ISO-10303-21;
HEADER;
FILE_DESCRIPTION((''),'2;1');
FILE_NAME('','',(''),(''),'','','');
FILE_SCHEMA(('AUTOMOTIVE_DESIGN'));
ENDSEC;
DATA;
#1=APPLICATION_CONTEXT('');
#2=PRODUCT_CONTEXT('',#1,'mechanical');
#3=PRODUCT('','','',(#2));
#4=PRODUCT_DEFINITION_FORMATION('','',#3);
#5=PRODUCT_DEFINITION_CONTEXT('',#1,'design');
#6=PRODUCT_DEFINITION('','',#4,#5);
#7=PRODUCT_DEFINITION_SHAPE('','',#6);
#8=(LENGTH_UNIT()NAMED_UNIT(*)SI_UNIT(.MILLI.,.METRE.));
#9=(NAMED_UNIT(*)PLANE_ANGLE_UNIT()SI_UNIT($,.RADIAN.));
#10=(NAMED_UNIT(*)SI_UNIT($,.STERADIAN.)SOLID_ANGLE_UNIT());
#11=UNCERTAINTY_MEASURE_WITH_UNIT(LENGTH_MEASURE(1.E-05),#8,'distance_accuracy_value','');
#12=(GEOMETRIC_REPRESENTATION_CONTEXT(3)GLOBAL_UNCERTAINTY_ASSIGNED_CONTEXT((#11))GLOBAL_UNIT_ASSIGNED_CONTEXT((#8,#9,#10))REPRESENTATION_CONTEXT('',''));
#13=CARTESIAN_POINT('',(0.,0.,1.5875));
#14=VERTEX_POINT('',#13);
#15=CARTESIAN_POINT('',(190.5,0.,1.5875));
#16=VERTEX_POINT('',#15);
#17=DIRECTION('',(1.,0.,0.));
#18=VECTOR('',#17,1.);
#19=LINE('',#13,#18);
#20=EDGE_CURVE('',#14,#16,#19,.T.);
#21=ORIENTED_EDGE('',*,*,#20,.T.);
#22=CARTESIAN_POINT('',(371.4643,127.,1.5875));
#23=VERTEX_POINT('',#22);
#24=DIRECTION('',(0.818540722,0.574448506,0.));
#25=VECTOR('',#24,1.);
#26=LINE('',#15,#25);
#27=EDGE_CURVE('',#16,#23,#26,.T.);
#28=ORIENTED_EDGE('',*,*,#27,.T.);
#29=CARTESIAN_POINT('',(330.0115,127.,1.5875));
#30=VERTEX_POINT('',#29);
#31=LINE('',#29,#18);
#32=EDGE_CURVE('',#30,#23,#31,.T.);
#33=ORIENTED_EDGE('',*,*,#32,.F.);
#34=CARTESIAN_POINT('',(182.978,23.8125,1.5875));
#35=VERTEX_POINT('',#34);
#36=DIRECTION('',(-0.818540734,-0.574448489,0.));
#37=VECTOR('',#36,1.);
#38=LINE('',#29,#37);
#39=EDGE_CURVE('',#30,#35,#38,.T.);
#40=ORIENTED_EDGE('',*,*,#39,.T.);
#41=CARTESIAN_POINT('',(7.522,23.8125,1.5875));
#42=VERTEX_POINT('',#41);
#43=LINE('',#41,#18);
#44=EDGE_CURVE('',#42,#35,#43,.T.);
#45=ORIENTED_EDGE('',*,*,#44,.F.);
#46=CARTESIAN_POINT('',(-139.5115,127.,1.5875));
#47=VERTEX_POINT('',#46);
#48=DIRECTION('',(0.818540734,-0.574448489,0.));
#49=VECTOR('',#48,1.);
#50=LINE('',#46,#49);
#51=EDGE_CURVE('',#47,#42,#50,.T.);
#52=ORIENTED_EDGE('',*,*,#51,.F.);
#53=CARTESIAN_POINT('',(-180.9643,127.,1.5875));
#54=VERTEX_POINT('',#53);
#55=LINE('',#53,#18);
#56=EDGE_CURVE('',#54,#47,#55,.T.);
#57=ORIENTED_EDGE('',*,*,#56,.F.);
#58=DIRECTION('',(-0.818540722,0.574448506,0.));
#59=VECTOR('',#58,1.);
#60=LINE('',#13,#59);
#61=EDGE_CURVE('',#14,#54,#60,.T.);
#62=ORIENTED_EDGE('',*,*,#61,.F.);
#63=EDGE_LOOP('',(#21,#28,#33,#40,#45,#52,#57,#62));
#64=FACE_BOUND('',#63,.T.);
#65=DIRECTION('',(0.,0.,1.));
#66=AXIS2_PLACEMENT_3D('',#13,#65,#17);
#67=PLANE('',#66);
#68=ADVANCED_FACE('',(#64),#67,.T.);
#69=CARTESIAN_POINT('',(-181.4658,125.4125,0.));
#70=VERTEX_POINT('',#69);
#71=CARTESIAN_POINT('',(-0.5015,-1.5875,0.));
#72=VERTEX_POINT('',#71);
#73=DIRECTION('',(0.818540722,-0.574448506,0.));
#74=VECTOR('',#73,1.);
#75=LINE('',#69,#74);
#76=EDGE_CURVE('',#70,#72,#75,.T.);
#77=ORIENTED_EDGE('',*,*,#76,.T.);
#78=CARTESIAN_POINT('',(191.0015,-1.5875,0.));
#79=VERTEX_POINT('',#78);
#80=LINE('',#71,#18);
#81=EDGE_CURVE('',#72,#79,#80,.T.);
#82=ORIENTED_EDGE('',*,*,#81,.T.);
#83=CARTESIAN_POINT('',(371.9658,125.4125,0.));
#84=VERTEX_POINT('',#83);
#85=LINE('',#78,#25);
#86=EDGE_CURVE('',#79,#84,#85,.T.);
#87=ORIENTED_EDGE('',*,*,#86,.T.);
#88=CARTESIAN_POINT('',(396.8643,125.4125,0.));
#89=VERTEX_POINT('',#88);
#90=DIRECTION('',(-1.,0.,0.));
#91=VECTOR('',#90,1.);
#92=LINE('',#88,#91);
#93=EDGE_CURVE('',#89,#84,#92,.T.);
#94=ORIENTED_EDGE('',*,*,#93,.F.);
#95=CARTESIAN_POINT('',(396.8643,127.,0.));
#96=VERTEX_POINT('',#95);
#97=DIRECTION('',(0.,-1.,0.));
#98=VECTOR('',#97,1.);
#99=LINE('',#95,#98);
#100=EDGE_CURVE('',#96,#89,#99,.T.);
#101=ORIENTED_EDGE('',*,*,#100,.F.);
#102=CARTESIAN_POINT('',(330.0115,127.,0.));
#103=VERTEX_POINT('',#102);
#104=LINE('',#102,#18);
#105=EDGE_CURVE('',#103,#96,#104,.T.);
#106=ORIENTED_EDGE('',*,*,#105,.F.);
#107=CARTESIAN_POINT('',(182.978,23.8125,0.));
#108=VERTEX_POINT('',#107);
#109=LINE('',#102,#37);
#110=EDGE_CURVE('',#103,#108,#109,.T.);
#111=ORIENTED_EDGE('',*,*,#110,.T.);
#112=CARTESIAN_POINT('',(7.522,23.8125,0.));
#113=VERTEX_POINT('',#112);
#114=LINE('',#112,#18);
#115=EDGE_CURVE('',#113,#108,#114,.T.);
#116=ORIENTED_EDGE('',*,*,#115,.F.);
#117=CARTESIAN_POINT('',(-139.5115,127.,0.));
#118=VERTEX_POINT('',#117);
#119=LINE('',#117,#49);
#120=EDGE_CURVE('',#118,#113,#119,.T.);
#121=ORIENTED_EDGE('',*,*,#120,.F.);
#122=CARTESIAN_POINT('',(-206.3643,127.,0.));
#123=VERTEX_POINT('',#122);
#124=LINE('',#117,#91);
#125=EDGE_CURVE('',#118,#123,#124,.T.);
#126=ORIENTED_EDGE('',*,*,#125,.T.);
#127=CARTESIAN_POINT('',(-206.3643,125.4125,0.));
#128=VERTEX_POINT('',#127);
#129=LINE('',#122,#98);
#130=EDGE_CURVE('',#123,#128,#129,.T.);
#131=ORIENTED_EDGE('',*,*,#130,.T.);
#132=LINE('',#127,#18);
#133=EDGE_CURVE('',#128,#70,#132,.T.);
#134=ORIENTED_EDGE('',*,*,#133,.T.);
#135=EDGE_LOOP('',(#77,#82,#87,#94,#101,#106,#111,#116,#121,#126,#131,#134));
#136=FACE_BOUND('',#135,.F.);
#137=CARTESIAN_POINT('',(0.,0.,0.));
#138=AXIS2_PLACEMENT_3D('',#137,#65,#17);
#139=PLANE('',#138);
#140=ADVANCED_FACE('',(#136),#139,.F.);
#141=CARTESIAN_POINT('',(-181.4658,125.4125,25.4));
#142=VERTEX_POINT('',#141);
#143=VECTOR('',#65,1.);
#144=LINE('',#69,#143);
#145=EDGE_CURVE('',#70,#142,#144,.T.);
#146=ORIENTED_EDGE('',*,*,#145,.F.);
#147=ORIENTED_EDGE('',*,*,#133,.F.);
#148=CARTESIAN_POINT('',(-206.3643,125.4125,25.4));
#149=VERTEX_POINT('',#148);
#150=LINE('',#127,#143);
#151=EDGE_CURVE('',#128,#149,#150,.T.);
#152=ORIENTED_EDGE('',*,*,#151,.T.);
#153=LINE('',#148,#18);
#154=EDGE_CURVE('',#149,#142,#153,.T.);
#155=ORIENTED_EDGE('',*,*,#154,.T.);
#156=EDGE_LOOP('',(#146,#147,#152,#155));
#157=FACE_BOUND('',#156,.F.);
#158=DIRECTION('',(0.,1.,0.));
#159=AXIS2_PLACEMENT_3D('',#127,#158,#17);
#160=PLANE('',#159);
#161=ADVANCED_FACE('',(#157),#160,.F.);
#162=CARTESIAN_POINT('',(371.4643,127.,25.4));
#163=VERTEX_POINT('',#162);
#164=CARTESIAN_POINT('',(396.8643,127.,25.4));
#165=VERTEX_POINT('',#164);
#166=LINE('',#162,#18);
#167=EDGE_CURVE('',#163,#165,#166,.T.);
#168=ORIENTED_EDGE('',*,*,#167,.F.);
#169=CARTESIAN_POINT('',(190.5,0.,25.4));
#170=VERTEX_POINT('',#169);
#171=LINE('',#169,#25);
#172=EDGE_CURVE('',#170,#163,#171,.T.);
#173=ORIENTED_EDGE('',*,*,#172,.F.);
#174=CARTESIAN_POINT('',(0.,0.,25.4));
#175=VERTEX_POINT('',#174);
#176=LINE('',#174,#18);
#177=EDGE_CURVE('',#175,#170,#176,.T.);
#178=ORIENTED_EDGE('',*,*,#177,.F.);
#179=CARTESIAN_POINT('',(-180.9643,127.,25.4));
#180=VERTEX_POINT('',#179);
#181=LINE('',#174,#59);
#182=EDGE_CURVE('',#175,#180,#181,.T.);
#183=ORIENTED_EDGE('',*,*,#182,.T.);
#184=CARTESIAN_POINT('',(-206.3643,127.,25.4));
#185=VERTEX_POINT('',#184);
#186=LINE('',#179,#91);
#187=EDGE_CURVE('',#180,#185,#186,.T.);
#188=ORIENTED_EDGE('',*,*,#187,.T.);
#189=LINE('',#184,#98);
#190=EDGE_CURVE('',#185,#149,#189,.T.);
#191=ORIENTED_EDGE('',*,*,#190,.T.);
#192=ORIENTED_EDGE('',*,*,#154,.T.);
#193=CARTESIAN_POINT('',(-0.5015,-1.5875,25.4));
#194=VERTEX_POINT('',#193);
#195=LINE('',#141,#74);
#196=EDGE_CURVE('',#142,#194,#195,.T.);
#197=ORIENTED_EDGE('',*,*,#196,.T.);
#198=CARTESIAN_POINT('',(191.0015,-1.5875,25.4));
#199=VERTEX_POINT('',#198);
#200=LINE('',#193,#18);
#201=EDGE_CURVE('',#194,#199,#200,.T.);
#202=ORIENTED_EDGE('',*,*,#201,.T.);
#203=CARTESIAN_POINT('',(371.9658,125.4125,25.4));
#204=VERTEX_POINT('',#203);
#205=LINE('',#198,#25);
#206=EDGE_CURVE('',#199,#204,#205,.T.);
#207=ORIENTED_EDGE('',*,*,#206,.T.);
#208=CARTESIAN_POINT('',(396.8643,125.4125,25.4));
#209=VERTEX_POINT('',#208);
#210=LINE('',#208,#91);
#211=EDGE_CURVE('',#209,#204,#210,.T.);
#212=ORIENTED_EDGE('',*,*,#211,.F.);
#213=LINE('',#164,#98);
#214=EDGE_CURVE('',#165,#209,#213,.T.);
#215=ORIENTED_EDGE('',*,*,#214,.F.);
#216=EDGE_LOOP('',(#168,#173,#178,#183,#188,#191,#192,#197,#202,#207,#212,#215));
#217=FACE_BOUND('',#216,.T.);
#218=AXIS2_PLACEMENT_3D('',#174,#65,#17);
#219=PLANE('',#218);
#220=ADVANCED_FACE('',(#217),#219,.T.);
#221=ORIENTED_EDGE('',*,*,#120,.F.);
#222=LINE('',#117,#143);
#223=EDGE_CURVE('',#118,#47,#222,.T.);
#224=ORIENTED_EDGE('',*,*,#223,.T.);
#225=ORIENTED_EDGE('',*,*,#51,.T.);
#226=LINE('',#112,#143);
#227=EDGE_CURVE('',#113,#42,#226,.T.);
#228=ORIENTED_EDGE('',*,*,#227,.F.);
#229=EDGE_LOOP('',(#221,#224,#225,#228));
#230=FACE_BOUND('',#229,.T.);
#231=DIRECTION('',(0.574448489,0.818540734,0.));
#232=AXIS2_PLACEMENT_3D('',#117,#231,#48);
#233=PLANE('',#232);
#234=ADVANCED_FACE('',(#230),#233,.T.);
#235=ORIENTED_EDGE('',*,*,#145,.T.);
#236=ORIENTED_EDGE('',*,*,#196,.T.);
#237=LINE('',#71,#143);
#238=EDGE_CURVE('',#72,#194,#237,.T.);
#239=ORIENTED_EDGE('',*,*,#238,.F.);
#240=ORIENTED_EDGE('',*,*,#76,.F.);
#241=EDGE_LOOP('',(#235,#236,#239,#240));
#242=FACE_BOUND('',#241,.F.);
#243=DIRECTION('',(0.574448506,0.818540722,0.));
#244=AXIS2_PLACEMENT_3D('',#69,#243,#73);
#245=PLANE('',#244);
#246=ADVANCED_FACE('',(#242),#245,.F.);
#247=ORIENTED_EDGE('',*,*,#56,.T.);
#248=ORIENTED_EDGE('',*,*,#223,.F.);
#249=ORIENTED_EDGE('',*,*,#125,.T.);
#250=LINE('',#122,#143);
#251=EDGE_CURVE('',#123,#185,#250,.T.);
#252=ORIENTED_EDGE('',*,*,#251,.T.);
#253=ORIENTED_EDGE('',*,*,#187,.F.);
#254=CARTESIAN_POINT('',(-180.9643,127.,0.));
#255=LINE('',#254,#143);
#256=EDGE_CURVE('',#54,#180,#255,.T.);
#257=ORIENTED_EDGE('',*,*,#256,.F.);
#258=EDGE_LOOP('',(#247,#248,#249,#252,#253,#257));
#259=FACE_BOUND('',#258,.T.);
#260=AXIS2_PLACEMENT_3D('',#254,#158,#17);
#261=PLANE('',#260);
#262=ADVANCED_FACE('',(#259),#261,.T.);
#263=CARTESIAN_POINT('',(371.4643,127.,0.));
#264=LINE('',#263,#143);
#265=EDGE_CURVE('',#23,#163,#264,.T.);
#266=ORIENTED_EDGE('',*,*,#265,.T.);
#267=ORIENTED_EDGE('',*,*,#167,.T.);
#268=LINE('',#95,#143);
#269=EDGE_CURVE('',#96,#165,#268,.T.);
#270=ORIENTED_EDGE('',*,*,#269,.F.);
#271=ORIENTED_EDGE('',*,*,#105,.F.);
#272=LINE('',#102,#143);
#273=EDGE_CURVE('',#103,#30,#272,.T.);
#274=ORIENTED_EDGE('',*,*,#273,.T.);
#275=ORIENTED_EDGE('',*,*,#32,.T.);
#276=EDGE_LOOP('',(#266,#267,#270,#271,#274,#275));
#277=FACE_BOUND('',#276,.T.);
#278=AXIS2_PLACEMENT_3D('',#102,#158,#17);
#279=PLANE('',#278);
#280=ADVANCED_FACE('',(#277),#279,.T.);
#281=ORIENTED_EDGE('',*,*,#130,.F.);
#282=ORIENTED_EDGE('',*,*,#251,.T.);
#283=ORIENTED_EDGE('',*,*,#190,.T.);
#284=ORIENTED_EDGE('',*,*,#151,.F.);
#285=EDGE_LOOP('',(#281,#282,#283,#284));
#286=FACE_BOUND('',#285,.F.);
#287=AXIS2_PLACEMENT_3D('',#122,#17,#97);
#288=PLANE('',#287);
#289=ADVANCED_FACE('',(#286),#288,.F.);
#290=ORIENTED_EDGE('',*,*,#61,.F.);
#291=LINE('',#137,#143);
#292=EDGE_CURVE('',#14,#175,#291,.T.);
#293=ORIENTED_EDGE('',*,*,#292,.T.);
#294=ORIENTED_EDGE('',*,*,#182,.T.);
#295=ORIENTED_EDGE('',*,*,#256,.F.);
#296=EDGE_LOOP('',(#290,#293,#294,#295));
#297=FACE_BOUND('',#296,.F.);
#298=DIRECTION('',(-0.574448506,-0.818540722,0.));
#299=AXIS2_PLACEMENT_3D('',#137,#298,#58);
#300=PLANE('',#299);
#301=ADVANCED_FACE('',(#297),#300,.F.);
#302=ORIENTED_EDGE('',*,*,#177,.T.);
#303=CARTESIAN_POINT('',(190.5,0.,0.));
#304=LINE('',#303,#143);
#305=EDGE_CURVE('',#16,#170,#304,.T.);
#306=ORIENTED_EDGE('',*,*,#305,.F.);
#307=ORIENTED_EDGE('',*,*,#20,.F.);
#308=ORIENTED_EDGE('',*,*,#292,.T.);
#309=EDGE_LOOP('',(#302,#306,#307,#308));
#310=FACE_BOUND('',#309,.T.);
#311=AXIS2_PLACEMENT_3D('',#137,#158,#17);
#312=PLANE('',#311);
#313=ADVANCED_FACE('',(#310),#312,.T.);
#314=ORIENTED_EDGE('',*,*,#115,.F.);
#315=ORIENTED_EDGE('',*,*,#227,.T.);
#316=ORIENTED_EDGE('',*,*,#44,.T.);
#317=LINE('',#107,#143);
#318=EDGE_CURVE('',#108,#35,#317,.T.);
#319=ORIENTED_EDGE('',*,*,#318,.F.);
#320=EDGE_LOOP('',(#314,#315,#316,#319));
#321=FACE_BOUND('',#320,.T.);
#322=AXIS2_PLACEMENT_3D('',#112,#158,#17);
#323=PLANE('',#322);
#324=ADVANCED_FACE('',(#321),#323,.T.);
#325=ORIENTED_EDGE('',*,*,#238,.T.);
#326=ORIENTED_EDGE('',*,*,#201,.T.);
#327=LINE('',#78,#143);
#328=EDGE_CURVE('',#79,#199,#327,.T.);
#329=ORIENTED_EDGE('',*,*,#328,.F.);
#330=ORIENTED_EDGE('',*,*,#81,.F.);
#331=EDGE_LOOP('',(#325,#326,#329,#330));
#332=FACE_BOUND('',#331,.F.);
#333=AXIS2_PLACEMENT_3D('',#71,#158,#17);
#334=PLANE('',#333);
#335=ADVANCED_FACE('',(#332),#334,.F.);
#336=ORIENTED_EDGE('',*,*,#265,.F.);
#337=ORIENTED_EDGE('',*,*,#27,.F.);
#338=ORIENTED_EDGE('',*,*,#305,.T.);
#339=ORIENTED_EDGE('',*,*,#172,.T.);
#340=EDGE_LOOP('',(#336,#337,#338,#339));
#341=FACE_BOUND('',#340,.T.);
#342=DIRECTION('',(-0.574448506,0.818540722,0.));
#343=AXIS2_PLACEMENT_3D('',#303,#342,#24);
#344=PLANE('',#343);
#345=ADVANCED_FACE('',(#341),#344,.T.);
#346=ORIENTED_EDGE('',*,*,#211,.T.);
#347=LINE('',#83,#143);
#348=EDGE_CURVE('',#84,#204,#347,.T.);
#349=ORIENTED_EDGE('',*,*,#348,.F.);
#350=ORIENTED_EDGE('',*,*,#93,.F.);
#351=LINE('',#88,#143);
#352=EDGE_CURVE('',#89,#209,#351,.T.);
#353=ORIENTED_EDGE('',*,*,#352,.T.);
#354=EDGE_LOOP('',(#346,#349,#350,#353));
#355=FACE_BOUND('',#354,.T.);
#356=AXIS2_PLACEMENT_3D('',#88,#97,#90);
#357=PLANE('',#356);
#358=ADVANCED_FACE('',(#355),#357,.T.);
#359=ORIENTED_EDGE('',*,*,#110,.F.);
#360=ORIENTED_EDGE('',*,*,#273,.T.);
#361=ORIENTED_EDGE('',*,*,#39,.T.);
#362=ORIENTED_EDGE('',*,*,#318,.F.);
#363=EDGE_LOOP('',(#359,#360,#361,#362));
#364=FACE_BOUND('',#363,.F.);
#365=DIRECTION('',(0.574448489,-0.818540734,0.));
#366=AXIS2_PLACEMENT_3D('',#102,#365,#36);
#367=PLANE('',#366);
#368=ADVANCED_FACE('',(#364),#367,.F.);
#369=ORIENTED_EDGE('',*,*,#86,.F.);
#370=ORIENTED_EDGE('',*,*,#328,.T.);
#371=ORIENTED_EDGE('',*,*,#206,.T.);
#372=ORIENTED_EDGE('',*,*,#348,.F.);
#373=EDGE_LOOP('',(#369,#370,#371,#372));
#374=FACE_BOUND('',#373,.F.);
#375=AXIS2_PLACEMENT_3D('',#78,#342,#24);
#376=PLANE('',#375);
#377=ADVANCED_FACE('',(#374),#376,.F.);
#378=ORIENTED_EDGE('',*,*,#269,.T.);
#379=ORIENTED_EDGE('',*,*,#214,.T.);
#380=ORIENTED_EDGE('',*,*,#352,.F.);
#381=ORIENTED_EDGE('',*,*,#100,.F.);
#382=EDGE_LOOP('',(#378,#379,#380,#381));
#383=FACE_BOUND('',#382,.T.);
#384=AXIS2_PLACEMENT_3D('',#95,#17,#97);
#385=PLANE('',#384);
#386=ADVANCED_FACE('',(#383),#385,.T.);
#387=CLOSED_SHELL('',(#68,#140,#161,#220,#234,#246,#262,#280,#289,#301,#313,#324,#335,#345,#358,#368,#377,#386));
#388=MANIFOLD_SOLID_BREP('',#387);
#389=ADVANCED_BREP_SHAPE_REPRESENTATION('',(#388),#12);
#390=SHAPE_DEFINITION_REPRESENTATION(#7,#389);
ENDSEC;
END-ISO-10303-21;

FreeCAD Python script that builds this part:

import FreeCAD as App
import Part
import Sketcher
Q = App.Units.Quantity

doc = App.newDocument("Part")
params = doc.addObject("Spreadsheet::Sheet", "Params")
for row, (alias, value) in enumerate([
    ("sketch1_width", "7.5 in"),
    ("sketch1_width2", "1.632 in"),
    ("pad1_length", "0.0625 in"),
    ("sketch2_width", "1 in"),
    ("sketch2_width2", "7.5 in"),
    ("sketch2_height", "0.0625 in"),
    ("pad2_length", "1 in"),
], start=1):
    params.set(f"A{row}", alias)
    params.set(f"B{row}", "=" + value)
    params.setAlias(f"B{row}", alias)

body = doc.addObject("PartDesign::Body", "Body")

sketch1 = body.newObject("Sketcher::SketchObject", "Sketch")
sketch1.AttachmentSupport = (doc.getObject("XY_Plane"), [""])
sketch1.MapMode = "FlatFace"
sketch1.addGeometry(Part.LineSegment(App.Vector(-181, 127, 0), App.Vector(0, 0, 0)), False)
sketch1.addGeometry(Part.LineSegment(App.Vector(0, 0, 0), App.Vector(190, 0, 0)), False)
sketch1.addGeometry(Part.LineSegment(App.Vector(190, 0, 0), App.Vector(371, 127, 0)), False)
sketch1.addGeometry(Part.LineSegment(App.Vector(371, 127, 0), App.Vector(330, 127, 0)), False)
sketch1.addGeometry(Part.LineSegment(App.Vector(330, 127, 0), App.Vector(183, 24, 0)), False)
sketch1.addGeometry(Part.LineSegment(App.Vector(183, 24, 0), App.Vector(8, 24, 0)), False)
sketch1.addGeometry(Part.LineSegment(App.Vector(8, 24, 0), App.Vector(-140, 127, 0)), False)
sketch1.addGeometry(Part.LineSegment(App.Vector(-140, 127, 0), App.Vector(-181, 127, 0)), False)
sketch1.addConstraint(Sketcher.Constraint("Coincident", 0, 2, 1, 1))
sketch1.addConstraint(Sketcher.Constraint("Coincident", 1, 2, 2, 1))
sketch1.addConstraint(Sketcher.Constraint("Coincident", 2, 2, 3, 1))
sketch1.addConstraint(Sketcher.Constraint("Coincident", 3, 2, 4, 1))
sketch1.addConstraint(Sketcher.Constraint("Coincident", 4, 2, 5, 1))
sketch1.addConstraint(Sketcher.Constraint("Coincident", 5, 2, 6, 1))
sketch1.addConstraint(Sketcher.Constraint("Coincident", 6, 2, 7, 1))
sketch1.addConstraint(Sketcher.Constraint("Coincident", 7, 2, 0, 1))
sketch1.addConstraint(Sketcher.Constraint("Horizontal", 1))
sketch1.addConstraint(Sketcher.Constraint("Horizontal", 3))
sketch1.addConstraint(Sketcher.Constraint("Horizontal", 5))
sketch1.addConstraint(Sketcher.Constraint("Horizontal", 7))
sketch1.addConstraint(Sketcher.Constraint("Coincident", 0, 2, -1, 1))
sketch1.addConstraint(Sketcher.Constraint("Parallel", 2, 4))
sketch1.addConstraint(Sketcher.Constraint("Parallel", 0, 6))
sketch1.addConstraint(Sketcher.Constraint("Horizontal", 3, 2, 6, 2))
sketch1.addConstraint(Sketcher.Constraint("Equal", 3, 7))
sketch1.addConstraint(Sketcher.Constraint("Equal", 0, 2))
sketch1.addConstraint(Sketcher.Constraint("DistanceX", 1, 1, 1, 2, Q("7.5 in")))
sketch1.addConstraint(Sketcher.Constraint("DistanceY", -1, 1, 2, 2, Q("5 in")))
sketch1.addConstraint(Sketcher.Constraint("Angle", 4, Q("-144.939 deg")))
sketch1.addConstraint(Sketcher.Constraint("DistanceY", -1, 1, 4, 2, Q("0.9375 in")))
sketch1.addConstraint(Sketcher.Constraint("DistanceX", 3, 2, 3, 1, Q("1.632 in")))
sketch1.setExpression("Constraints[18]", "Params.sketch1_width")
sketch1.setExpression("Constraints[22]", "Params.sketch1_width2")
pad1 = body.newObject("PartDesign::Pad", "Pad")
pad1.Profile = sketch1
pad1.setExpression("Length", "Params.pad1_length")

sketch2 = body.newObject("Sketcher::SketchObject", "Sketch001")
sketch2.AttachmentSupport = (doc.getObject("XY_Plane"), [""])
sketch2.MapMode = "FlatFace"
sketch2.addGeometry(Part.LineSegment(App.Vector(190.5, 0, 0), App.Vector(0, 0, 0)), False)
sketch2.addGeometry(Part.LineSegment(App.Vector(0, 0, 0), App.Vector(-181, 127, 0)), False)
sketch2.addGeometry(Part.LineSegment(App.Vector(-181, 127, 0), App.Vector(-206.4, 127, 0)), False)
sketch2.addGeometry(Part.LineSegment(App.Vector(-206.4, 127, 0), App.Vector(-206.4, 125.4, 0)), False)
sketch2.addGeometry(Part.LineSegment(App.Vector(-206.4, 125.4, 0), App.Vector(-181.5, 125.4, 0)), False)
sketch2.addGeometry(Part.LineSegment(App.Vector(-181.5, 125.4, 0), App.Vector(-0.5, -1.6, 0)), False)
sketch2.addGeometry(Part.LineSegment(App.Vector(-0.5, -1.6, 0), App.Vector(191, -1.6, 0)), False)
sketch2.addGeometry(Part.LineSegment(App.Vector(191, -1.6, 0), App.Vector(372, 125.4, 0)), False)
sketch2.addGeometry(Part.LineSegment(App.Vector(372, 125.4, 0), App.Vector(396.9, 125.4, 0)), False)
sketch2.addGeometry(Part.LineSegment(App.Vector(396.9, 125.4, 0), App.Vector(396.9, 127, 0)), False)
sketch2.addGeometry(Part.LineSegment(App.Vector(396.9, 127, 0), App.Vector(371.5, 127, 0)), False)
sketch2.addGeometry(Part.LineSegment(App.Vector(371.5, 127, 0), App.Vector(190.5, 0, 0)), False)
sketch2.addConstraint(Sketcher.Constraint("Coincident", 0, 2, 1, 1))
sketch2.addConstraint(Sketcher.Constraint("Coincident", 1, 2, 2, 1))
sketch2.addConstraint(Sketcher.Constraint("Coincident", 2, 2, 3, 1))
sketch2.addConstraint(Sketcher.Constraint("Coincident", 3, 2, 4, 1))
sketch2.addConstraint(Sketcher.Constraint("Coincident", 4, 2, 5, 1))
sketch2.addConstraint(Sketcher.Constraint("Coincident", 5, 2, 6, 1))
sketch2.addConstraint(Sketcher.Constraint("Coincident", 6, 2, 7, 1))
sketch2.addConstraint(Sketcher.Constraint("Coincident", 7, 2, 8, 1))
sketch2.addConstraint(Sketcher.Constraint("Coincident", 8, 2, 9, 1))
sketch2.addConstraint(Sketcher.Constraint("Coincident", 9, 2, 10, 1))
sketch2.addConstraint(Sketcher.Constraint("Coincident", 10, 2, 11, 1))
sketch2.addConstraint(Sketcher.Constraint("Coincident", 11, 2, 0, 1))
sketch2.addConstraint(Sketcher.Constraint("Horizontal", 0))
sketch2.addConstraint(Sketcher.Constraint("Horizontal", 2))
sketch2.addConstraint(Sketcher.Constraint("Vertical", 3))
sketch2.addConstraint(Sketcher.Constraint("Horizontal", 4))
sketch2.addConstraint(Sketcher.Constraint("Horizontal", 6))
sketch2.addConstraint(Sketcher.Constraint("Horizontal", 8))
sketch2.addConstraint(Sketcher.Constraint("Vertical", 9))
sketch2.addConstraint(Sketcher.Constraint("Horizontal", 10))
sketch2.addConstraint(Sketcher.Constraint("Coincident", 0, 2, -1, 1))
sketch2.addConstraint(Sketcher.Constraint("Parallel", 1, 5))
sketch2.addConstraint(Sketcher.Constraint("Parallel", 7, 11))
sketch2.addConstraint(Sketcher.Constraint("Horizontal", 4, 2, 7, 2))
sketch2.addConstraint(Sketcher.Constraint("Horizontal", 2, 2, 9, 2))
sketch2.addConstraint(Sketcher.Constraint("Equal", 4, 8))
sketch2.addConstraint(Sketcher.Constraint("Equal", 2, 10))
sketch2.addConstraint(Sketcher.Constraint("Equal", 1, 5))
sketch2.addConstraint(Sketcher.Constraint("Equal", 5, 7))
sketch2.addConstraint(Sketcher.Constraint("DistanceX", 2, 2, 2, 1, Q("1 in")))
sketch2.addConstraint(Sketcher.Constraint("DistanceX", 0, 2, 0, 1, Q("7.5 in")))
sketch2.addConstraint(Sketcher.Constraint("DistanceY", -1, 1, 1, 2, Q("5 in")))
sketch2.addConstraint(Sketcher.Constraint("DistanceY", 3, 2, 3, 1, Q("0.0625 in")))
sketch2.addConstraint(Sketcher.Constraint("Angle", 1, Q("144.939 deg")))
sketch2.addConstraint(Sketcher.Constraint("DistanceX", 6, 1, 6, 2, Q("7.5395 in")))
sketch2.setExpression("Constraints[29]", "Params.sketch2_width")
sketch2.setExpression("Constraints[30]", "Params.sketch2_width2")
sketch2.setExpression("Constraints[32]", "Params.sketch2_height")
pad2 = body.newObject("PartDesign::Pad", "Pad001")
pad2.Profile = sketch2
pad2.setExpression("Length", "Params.pad2_length")

doc.recompute()
